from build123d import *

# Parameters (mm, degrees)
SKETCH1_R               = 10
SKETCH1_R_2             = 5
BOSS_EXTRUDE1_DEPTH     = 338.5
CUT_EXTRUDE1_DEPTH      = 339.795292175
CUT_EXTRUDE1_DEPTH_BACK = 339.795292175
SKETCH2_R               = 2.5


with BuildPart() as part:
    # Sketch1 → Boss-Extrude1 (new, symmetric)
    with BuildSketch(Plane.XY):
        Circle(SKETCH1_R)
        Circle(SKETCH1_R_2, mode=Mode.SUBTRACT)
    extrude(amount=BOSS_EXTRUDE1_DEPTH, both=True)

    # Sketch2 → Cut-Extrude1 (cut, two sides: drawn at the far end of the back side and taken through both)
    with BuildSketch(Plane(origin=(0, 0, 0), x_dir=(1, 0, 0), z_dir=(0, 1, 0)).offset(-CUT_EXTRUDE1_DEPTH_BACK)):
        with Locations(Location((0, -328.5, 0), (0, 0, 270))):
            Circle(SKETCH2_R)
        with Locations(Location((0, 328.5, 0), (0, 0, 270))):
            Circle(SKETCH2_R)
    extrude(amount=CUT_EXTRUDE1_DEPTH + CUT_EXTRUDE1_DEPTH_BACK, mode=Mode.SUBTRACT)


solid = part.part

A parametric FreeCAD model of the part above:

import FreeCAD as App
import Part
import Sketcher
from FreeCAD import Vector
Q = App.Units.Quantity

doc = App.newDocument("Part")
body = doc.addObject("PartDesign::Body", "Body")

# Sketch on XY plane
sketch1 = body.newObject("Sketcher::SketchObject", "Sketch")
sketch1.AttachmentSupport = (doc.getObject("XY_Plane"), [""])
sketch1.MapMode = "FlatFace"
sketch1.addGeometry([
    Part.Circle(Vector(0, 0, 0), Vector(0, 0, 1), 10),
    Part.Circle(Vector(0, 0, 0), Vector(0, 0, 1), 5),
], False)
sketch1.addConstraint([
    Sketcher.Constraint("Coincident", 0, 3, -1, 1),
    Sketcher.Constraint("Coincident", 1, 3, -1, 1),
    Sketcher.Constraint("Diameter", 0, Q("20 mm")),
    Sketcher.Constraint("Diameter", 1, Q("10 mm")),
])
pad1 = body.newObject("PartDesign::Pad", "Pad")
pad1.Profile = sketch1
pad1.Length = 677
pad1.Midplane = True

# Sketch on XZ plane
sketch2 = body.newObject("Sketcher::SketchObject", "Sketch001")
sketch2.AttachmentSupport = (doc.getObject("XZ_Plane"), [""])
sketch2.MapMode = "FlatFace"
sketch2.addGeometry([
    Part.Circle(Vector(0, 328.5, 0), Vector(0, 0, 1), 2.5),
    Part.Circle(Vector(0, -328.5, 0), Vector(0, 0, 1), 2.5),
], False)
sketch2.addConstraint([
    Sketcher.Constraint("Equal", 0, 1),
    Sketcher.Constraint("Symmetric", 0, 3, 1, 3, -1, 1),
    Sketcher.Constraint("PointOnObject", 0, 3, -2),
    Sketcher.Constraint("Diameter", 0, Q("5 mm")),
    Sketcher.Constraint("DistanceY", 1, 3, 0, 3, Q("657 mm")),
])
pocket1 = body.newObject("PartDesign::Pocket", "Pocket")
pocket1.Profile = sketch2
pocket1.Type = "ThroughAll"
pocket1.Midplane = True

doc.recompute()
